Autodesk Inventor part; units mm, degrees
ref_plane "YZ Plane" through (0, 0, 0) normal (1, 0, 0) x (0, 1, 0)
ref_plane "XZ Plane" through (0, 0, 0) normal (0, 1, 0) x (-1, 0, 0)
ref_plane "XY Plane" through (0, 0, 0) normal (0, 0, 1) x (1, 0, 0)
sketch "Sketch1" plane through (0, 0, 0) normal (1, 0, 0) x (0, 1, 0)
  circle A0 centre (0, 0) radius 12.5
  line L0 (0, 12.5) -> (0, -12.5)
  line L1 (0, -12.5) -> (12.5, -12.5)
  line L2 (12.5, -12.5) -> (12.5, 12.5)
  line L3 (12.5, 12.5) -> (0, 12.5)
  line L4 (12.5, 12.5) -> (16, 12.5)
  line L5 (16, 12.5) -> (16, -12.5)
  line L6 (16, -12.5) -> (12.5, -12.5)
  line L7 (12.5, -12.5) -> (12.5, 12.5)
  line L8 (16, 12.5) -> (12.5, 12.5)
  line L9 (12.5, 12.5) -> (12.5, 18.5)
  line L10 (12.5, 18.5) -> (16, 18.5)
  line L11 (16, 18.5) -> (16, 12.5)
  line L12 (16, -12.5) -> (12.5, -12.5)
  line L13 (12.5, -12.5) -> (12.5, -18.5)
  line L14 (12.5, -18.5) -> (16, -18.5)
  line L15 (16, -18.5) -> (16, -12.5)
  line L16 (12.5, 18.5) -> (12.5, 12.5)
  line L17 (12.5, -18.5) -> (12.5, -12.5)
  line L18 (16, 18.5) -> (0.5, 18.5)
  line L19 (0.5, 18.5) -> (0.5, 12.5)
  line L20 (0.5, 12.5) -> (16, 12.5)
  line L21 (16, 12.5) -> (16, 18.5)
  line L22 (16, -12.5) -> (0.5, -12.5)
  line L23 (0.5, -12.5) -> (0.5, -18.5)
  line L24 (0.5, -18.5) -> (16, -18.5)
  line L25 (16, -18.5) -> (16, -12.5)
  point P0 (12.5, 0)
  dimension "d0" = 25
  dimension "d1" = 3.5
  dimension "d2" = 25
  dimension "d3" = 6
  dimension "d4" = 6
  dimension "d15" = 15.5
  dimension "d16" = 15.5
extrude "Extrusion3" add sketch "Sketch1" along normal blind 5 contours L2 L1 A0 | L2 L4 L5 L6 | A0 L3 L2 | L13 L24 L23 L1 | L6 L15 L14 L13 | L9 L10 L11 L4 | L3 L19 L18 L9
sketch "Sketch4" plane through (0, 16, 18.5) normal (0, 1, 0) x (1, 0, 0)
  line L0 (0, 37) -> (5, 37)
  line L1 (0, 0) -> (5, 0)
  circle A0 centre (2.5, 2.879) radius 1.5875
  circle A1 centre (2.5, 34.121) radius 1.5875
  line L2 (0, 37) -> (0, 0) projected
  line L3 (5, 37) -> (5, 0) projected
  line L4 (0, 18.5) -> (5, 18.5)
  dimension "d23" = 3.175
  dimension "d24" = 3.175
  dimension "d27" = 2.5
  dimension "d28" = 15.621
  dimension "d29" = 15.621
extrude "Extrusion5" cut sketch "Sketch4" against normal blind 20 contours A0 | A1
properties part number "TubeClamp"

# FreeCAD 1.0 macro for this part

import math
import FreeCAD as App
import Part
import Sketcher
Q = App.Units.Quantity

doc = App.newDocument("Part")
body = doc.addObject("PartDesign::Body", "Body")

sketch1 = doc.addObject("Sketcher::SketchObject", "Sketch")
body.addObject(sketch1)
sketch1.AttachmentSupport = (doc.YZ_Plane, [""])
sketch1.MapMode = "FlatFace"
sketch1.addGeometry([
    Part.LineSegment(App.Vector(0, -12.5, 0), App.Vector(0.5, -12.5, 0)),
    Part.LineSegment(App.Vector(0.5, -12.5, 0), App.Vector(0.5, -18.5, 0)),
    Part.LineSegment(App.Vector(0.5, -18.5, 0), App.Vector(16, -18.5, 0)),
    Part.LineSegment(App.Vector(16, -18.5, 0), App.Vector(16, 18.5, 0)),
    Part.LineSegment(App.Vector(16, 18.5, 0), App.Vector(0.5, 18.5, 0)),
    Part.LineSegment(App.Vector(0.5, 18.5, 0), App.Vector(0.5, 12.5, 0)),
    Part.LineSegment(App.Vector(0.5, 12.5, 0), App.Vector(0, 12.5, 0)),
    Part.ArcOfCircle(Part.Circle(App.Vector(0, 0, 0), App.Vector(0, 0, 1), 12.5), math.radians(-90), math.radians(90)),
], False)
sketch1.addConstraint([
    Sketcher.Constraint("Coincident", 0, 2, 1, 1),
    Sketcher.Constraint("Coincident", 1, 2, 2, 1),
    Sketcher.Constraint("Coincident", 2, 2, 3, 1),
    Sketcher.Constraint("Coincident", 3, 2, 4, 1),
    Sketcher.Constraint("Coincident", 4, 2, 5, 1),
    Sketcher.Constraint("Coincident", 5, 2, 6, 1),
    Sketcher.Constraint("Tangent", 6, 2, 7, 2),
    Sketcher.Constraint("Tangent", 7, 1, 0, 1),
    Sketcher.Constraint("Horizontal", 0),
    Sketcher.Constraint("Vertical", 1),
    Sketcher.Constraint("Horizontal", 2),
    Sketcher.Constraint("Vertical", 3),
    Sketcher.Constraint("Horizontal", 4),
    Sketcher.Constraint("Vertical", 5),
    Sketcher.Constraint("Horizontal", 6),
    Sketcher.Constraint("Coincident", 7, 3, -1, 1),
    Sketcher.Constraint("Symmetric", 1, 2, 4, 2, -1),
    Sketcher.Constraint("Radius", 7, Q("12.5 mm")),
    Sketcher.Constraint("DistanceY", 1, 2, 1, 1, Q("6 mm")),
    Sketcher.Constraint("DistanceX", 2, 1, 2, 2, Q("15.5 mm")),
    Sketcher.Constraint("DistanceX", 0, 1, 0, 2, Q("0.5 mm")),
])
pad1 = doc.addObject("PartDesign::Pad", "Pad")
body.addObject(pad1)
pad1.Profile = sketch1
pad1.Length = 5

sketch2 = doc.addObject("Sketcher::SketchObject", "Sketch001")
body.addObject(sketch2)
sketch2.AttachmentSupport = (doc.XZ_Plane, [""])
sketch2.MapMode = "FlatFace"
sketch2.AttachmentOffset = App.Placement(App.Vector(0, 0, -16), App.Rotation())
sketch2.addGeometry([
    Part.Circle(App.Vector(2.5, 15.6, 0), App.Vector(0, 0, 1), 1.6),
    Part.Circle(App.Vector(2.5, -15.6, 0), App.Vector(0, 0, 1), 1.6),
], False)
sketch2.addConstraint([
    Sketcher.Constraint("Equal", 0, 1),
    Sketcher.Constraint("Symmetric", 0, 3, 1, 3, -1),
    Sketcher.Constraint("Diameter", 0, Q("3.175 mm")),
    Sketcher.Constraint("DistanceX", -1, 1, 0, 3, Q("2.5 mm")),
    Sketcher.Constraint("DistanceY", -1, 1, 0, 3, Q("15.621 mm")),
])
pocket1 = doc.addObject("PartDesign::Pocket", "Pocket")
body.addObject(pocket1)
pocket1.Profile = sketch2
pocket1.Length = 20
pocket1.Reversed = True

doc.recompute()
